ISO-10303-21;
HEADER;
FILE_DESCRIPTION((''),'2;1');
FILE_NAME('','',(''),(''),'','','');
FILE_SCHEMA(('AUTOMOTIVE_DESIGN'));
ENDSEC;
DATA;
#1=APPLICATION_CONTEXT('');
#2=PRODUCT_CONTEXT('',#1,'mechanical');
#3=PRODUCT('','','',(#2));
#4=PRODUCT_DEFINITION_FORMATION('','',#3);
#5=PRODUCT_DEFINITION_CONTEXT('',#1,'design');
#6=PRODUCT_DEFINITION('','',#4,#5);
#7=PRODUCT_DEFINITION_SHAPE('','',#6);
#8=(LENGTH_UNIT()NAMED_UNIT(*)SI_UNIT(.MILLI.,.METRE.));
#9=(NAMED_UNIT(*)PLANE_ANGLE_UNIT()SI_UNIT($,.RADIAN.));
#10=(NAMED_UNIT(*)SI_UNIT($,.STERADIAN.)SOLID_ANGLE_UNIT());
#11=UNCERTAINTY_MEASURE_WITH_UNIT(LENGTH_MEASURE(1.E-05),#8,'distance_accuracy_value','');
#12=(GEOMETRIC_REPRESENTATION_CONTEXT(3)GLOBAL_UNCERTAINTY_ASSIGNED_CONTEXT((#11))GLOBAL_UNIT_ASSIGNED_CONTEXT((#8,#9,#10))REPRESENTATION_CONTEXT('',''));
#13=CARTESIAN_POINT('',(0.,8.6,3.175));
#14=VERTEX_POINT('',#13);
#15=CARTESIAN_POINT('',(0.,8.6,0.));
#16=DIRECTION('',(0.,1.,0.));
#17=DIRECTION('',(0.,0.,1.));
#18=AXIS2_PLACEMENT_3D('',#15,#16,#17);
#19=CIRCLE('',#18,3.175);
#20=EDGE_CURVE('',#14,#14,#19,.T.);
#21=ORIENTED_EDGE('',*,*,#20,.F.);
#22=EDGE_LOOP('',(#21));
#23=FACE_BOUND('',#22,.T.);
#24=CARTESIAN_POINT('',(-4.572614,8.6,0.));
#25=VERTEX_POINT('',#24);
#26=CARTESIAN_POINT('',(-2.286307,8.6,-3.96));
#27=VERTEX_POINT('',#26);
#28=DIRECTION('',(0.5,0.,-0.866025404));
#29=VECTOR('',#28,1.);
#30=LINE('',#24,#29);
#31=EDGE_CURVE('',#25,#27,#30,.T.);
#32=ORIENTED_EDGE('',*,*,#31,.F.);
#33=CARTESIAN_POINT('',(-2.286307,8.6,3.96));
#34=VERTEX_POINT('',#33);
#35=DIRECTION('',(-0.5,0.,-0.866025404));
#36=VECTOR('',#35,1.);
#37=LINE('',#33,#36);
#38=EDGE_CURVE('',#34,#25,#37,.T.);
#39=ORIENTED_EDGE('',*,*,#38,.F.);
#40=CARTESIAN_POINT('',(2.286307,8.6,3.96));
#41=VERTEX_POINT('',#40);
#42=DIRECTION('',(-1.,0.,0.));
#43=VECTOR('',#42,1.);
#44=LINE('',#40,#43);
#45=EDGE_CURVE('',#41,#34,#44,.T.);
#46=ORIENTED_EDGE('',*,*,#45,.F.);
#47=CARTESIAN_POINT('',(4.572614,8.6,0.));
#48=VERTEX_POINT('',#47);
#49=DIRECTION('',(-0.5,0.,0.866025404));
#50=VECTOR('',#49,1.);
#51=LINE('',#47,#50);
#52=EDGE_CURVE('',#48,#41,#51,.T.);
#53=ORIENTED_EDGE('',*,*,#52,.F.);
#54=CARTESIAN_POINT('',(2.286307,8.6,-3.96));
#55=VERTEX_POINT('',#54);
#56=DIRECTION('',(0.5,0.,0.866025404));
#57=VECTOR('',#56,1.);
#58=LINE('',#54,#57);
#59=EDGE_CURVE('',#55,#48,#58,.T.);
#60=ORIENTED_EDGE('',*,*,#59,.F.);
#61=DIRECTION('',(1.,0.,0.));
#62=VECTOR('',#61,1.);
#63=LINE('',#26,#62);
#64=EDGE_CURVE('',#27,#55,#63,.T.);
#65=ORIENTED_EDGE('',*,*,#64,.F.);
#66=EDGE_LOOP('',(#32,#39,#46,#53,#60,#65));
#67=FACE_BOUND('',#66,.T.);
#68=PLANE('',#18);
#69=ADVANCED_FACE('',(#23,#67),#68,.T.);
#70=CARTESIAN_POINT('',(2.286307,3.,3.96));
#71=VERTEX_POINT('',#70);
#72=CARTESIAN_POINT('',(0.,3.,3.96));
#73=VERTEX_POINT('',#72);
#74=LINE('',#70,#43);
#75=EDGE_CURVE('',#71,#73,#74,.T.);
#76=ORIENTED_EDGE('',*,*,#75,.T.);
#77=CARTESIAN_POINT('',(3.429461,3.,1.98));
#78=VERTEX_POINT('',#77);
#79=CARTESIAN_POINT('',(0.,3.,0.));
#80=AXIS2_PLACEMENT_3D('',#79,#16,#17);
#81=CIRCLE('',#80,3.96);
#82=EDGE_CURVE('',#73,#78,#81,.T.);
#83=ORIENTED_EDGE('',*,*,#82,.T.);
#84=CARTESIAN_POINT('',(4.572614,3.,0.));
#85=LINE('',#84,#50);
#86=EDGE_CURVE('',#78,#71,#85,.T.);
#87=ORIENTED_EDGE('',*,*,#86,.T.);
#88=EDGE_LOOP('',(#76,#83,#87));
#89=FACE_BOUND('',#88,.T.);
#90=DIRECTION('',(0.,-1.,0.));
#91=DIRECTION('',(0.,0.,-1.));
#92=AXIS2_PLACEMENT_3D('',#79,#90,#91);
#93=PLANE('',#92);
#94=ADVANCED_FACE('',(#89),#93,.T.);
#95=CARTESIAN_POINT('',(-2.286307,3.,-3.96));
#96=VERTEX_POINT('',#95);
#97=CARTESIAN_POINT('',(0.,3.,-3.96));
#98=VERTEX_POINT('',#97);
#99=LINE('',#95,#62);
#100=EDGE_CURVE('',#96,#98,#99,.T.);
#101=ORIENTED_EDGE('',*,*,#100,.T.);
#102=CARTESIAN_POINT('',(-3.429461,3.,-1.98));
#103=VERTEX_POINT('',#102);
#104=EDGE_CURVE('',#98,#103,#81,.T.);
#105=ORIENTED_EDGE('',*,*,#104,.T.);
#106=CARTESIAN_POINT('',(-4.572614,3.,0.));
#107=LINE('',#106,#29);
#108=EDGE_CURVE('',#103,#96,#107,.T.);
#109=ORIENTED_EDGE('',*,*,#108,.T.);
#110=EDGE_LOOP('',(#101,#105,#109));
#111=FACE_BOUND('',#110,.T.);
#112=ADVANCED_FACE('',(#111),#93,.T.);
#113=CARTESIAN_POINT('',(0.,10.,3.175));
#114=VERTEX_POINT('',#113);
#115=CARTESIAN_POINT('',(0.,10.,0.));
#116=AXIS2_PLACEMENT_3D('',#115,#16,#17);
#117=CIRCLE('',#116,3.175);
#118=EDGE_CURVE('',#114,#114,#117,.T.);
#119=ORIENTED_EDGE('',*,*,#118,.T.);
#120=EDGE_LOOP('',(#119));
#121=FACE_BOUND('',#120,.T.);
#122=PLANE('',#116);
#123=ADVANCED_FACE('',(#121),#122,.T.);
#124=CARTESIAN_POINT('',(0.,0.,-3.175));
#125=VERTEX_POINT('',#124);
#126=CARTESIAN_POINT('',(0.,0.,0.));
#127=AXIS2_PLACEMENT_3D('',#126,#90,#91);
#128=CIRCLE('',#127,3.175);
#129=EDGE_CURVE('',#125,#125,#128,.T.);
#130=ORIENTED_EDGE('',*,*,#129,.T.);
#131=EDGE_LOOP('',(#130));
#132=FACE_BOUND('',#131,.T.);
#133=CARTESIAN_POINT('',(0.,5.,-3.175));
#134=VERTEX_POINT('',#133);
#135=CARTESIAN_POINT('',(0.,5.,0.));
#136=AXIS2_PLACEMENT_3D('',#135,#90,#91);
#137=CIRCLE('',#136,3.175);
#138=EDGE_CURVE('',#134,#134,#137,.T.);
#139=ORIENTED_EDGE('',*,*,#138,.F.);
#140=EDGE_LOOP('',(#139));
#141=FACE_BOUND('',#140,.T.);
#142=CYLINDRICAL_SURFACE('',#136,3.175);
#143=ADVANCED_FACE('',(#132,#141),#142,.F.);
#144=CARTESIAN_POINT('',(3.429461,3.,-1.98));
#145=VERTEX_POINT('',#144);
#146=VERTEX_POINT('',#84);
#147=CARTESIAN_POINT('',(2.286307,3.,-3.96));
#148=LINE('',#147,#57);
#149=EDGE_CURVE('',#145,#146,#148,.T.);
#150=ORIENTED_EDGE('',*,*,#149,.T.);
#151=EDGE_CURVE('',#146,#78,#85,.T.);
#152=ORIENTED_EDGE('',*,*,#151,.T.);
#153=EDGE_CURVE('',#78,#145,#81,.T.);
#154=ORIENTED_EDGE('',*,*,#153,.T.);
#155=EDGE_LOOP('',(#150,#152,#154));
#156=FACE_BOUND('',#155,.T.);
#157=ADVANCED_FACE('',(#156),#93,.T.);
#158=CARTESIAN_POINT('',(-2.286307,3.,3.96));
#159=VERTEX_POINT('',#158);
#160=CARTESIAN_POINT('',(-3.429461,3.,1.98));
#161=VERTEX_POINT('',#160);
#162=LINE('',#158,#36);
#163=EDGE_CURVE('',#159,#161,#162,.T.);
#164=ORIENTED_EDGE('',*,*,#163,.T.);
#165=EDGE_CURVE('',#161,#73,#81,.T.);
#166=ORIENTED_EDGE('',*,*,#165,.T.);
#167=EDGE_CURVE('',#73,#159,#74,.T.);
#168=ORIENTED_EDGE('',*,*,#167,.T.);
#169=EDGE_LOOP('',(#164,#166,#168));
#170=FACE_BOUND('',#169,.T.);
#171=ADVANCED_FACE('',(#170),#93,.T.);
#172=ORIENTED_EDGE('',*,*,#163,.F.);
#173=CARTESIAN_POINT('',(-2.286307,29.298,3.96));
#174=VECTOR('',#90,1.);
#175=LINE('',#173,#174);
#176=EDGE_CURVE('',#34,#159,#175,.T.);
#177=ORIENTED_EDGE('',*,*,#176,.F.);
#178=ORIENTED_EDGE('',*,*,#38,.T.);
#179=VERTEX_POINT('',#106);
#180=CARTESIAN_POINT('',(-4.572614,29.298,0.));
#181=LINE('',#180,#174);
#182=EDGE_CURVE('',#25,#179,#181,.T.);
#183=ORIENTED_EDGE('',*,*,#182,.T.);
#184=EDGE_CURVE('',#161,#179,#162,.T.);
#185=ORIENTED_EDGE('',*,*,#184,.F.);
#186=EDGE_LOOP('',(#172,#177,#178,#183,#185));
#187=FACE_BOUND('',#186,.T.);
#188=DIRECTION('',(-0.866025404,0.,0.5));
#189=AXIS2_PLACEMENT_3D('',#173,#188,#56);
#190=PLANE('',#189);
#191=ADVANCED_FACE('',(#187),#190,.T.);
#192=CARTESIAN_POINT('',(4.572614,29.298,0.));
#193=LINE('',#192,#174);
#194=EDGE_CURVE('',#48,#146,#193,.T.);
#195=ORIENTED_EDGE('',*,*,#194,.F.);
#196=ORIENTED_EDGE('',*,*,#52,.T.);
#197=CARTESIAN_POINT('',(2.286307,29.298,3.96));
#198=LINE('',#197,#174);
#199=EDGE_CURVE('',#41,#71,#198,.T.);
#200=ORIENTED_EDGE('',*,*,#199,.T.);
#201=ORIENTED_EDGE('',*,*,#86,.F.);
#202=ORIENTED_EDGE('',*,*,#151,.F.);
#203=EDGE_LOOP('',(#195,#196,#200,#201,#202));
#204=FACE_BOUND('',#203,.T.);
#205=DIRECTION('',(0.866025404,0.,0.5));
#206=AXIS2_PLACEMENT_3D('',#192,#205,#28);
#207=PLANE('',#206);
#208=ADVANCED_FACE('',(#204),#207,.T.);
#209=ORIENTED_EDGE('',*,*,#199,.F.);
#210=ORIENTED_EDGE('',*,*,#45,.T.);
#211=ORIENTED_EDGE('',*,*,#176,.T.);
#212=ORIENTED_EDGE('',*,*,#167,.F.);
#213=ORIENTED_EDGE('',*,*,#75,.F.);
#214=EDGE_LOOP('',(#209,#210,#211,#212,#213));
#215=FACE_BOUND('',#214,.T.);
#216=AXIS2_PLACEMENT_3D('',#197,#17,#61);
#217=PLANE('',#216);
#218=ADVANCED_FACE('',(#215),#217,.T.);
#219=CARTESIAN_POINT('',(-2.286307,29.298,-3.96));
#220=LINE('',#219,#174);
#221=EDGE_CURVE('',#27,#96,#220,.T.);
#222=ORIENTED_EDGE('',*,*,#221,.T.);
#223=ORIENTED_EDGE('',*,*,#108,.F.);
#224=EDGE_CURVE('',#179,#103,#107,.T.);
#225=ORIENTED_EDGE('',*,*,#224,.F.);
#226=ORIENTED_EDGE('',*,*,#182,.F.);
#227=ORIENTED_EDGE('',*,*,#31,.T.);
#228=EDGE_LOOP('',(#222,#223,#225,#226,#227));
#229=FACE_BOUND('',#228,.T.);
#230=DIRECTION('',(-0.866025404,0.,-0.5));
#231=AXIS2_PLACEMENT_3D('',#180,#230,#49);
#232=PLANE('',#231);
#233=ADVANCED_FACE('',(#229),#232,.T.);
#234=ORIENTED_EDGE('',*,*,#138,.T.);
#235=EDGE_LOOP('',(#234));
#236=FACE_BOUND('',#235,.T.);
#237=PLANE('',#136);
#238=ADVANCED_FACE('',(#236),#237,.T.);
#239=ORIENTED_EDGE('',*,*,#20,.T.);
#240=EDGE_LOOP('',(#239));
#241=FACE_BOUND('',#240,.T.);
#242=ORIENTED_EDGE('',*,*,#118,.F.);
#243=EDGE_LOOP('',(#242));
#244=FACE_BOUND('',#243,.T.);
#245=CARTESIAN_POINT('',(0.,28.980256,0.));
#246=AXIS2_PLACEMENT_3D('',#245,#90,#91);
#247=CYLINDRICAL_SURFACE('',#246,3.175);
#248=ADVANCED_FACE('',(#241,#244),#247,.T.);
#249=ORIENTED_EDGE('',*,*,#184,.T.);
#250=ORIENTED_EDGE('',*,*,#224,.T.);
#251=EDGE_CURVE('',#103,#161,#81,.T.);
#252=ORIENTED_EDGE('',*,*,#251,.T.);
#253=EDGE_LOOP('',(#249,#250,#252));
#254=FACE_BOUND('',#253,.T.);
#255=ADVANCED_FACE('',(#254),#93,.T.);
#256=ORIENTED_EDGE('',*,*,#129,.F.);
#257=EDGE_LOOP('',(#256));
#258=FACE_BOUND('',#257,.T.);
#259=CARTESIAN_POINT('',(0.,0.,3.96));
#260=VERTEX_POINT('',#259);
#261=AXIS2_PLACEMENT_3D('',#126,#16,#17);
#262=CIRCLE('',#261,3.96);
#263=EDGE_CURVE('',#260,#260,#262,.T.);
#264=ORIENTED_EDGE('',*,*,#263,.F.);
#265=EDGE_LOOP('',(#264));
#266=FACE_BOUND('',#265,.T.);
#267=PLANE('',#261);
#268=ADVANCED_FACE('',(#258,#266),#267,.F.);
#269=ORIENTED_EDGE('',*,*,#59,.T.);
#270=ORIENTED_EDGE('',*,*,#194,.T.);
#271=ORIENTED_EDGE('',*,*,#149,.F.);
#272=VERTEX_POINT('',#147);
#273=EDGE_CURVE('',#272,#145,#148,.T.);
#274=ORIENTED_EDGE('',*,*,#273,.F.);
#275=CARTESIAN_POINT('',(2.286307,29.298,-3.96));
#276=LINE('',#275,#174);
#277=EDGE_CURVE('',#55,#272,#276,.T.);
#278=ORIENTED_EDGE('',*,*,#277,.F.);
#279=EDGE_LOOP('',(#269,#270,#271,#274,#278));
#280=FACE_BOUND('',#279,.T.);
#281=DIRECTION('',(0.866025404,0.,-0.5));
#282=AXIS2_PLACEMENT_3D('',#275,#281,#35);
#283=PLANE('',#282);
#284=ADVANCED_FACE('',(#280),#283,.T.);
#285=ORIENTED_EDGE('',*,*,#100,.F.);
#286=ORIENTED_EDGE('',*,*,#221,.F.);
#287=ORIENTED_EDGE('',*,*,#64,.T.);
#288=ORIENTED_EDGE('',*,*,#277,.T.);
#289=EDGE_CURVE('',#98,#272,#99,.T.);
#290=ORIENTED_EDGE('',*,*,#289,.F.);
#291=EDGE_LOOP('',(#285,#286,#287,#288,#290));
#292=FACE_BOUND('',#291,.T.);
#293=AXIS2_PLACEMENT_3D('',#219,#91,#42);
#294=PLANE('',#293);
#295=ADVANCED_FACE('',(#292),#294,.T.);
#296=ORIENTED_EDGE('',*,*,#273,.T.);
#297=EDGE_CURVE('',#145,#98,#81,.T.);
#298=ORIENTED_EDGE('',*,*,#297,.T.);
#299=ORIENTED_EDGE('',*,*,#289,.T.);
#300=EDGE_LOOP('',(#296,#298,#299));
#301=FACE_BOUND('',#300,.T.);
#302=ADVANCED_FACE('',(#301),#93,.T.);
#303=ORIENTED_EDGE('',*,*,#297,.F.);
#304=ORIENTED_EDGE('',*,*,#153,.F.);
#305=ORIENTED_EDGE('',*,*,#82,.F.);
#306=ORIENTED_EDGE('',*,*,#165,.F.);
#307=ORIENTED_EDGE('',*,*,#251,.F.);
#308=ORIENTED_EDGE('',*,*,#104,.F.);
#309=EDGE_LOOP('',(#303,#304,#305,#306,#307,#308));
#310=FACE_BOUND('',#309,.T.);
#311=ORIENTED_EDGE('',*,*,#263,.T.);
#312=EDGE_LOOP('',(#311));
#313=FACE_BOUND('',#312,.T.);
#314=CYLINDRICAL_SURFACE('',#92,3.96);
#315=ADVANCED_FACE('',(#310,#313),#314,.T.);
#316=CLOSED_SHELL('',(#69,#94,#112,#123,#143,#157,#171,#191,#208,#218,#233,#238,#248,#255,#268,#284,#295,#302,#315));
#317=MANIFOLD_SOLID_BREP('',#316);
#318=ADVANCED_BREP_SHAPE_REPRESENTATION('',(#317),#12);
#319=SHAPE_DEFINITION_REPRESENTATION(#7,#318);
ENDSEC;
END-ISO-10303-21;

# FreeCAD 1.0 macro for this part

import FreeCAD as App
import Part
import Sketcher
from FreeCAD import Vector
Q = App.Units.Quantity


def add_polygon(sketch, points):
    """Adds a closed chain of lines whose ends are joined by coincident constraints."""
    first, n = sketch.GeometryCount, len(points)
    for a, b in zip(points, points[1:] + points[:1]):
        sketch.addGeometry(Part.LineSegment(App.Vector(*a, 0), App.Vector(*b, 0)), False)
    for i in range(n):
        sketch.addConstraint(Sketcher.Constraint("Coincident", first + i, 2, first + (i + 1) % n, 1))

doc = App.newDocument("Part")
body = doc.addObject("PartDesign::Body", "Body")

# Sketch on XZ plane
sketch1 = body.newObject("Sketcher::SketchObject", "Sketch")
sketch1.AttachmentSupport = (doc.getObject("XZ_Plane"), [""])
sketch1.MapMode = "FlatFace"
sketch1.addGeometry(Part.Circle(Vector(0, 0, 0), Vector(0, 0, 1), 3.96), False)
sketch1.addConstraint([
    Sketcher.Constraint("Coincident", 0, 3, -1, 1),
    Sketcher.Constraint("Diameter", 0, 7.92),
])
pad1 = body.newObject("PartDesign::Pad", "Pad")
pad1.Profile = sketch1
pad1.Length = 3
pad1.Reversed = True

# Sketch on XZ plane
sketch2 = body.newObject("Sketcher::SketchObject", "Sketch001")
sketch2.AttachmentSupport = (doc.getObject("XZ_Plane"), [""])
sketch2.MapMode = "FlatFace"
sketch2.AttachmentOffset = App.Placement(Vector(0, 0, -3), App.Rotation())
add_polygon(sketch2, [(-4.572614, 0), (-2.286307, -3.96), (2.286307, -3.96), (4.572614, 0), (2.286307, 3.96), (-2.286307, 3.96)])  # lines 0-5
sketch2.addConstraint([
    Sketcher.Constraint("Horizontal", 1),
    Sketcher.Constraint("Horizontal", 4),
    Sketcher.Constraint("Symmetric", 0, 2, 3, 2, -1, 1),
    Sketcher.Constraint("Symmetric", 2, 2, 5, 2, -1, 1),
    Sketcher.Constraint("PointOnObject", 2, 2, -1),
    Sketcher.Constraint("Parallel", 2, 5),
    Sketcher.Constraint("Vertical", 1, 2, 3, 2),
    Sketcher.Constraint("Angle", 0, Q("-60 deg")),
    Sketcher.Constraint("DistanceY", 0, 2, -1, 1, 3.96),
    Sketcher.Constraint("DistanceX", 1, 1, 1, 2, 4.572614),
])
pad2 = body.newObject("PartDesign::Pad", "Pad001")
pad2.Profile = sketch2
pad2.Length = 5.6
pad2.Reversed = True

# Sketch on XZ plane
sketch3 = body.newObject("Sketcher::SketchObject", "Sketch002")
sketch3.AttachmentSupport = (doc.getObject("XZ_Plane"), [""])
sketch3.MapMode = "FlatFace"
sketch3.addGeometry(Part.Circle(Vector(0, 0, 0), Vector(0, 0, 1), 3.175), False)
sketch3.addConstraint([
    Sketcher.Constraint("Coincident", 0, 3, -1, 1),
    Sketcher.Constraint("Diameter", 0, 6.35),
])
pocket1 = body.newObject("PartDesign::Pocket", "Pocket")
pocket1.Profile = sketch3
pocket1.Length = 5

# Sketch on XZ plane
sketch4 = body.newObject("Sketcher::SketchObject", "Sketch003")
sketch4.AttachmentSupport = (doc.getObject("XZ_Plane"), [""])
sketch4.MapMode = "FlatFace"
sketch4.AttachmentOffset = App.Placement(Vector(0, 0, -8.6), App.Rotation())
sketch4.addGeometry(Part.Circle(Vector(0, 0, 0), Vector(0, 0, 1), 3.175), False)
sketch4.addConstraint([
    Sketcher.Constraint("Coincident", 0, 3, -1, 1),
    Sketcher.Constraint("Diameter", 0, 6.35),
])
pad3 = body.newObject("PartDesign::Pad", "Pad002")
pad3.Profile = sketch4
pad3.Length = 1.4
pad3.Reversed = True

doc.recompute()
